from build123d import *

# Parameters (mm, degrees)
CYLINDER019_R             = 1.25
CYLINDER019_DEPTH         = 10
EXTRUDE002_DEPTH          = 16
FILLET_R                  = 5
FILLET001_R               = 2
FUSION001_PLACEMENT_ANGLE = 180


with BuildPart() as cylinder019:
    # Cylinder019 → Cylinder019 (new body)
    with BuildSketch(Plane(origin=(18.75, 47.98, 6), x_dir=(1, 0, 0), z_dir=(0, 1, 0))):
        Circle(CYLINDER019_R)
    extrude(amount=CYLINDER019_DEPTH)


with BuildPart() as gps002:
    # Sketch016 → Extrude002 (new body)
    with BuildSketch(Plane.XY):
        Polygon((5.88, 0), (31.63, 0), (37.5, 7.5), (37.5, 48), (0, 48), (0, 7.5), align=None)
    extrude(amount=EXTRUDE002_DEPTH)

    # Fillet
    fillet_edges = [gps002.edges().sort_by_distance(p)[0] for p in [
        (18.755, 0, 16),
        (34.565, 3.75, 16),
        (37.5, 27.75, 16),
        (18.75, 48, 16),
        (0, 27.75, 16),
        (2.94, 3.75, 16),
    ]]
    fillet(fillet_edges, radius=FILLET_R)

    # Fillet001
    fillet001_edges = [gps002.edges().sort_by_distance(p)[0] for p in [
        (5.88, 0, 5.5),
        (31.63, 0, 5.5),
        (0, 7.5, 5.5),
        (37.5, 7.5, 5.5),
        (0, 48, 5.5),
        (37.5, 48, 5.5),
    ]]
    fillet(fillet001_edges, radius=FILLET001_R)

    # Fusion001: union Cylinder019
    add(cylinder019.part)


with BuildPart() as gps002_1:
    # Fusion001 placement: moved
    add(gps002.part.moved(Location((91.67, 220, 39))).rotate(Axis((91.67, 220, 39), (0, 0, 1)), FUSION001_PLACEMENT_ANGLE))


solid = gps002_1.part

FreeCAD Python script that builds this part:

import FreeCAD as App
import Part
import Sketcher

V = App.Vector
Q = App.Units.Quantity


def edges_at(feature, points):
    """Names of the edges that pass closest to the given points."""
    edges = feature.Shape.Edges
    near = lambda p: min(range(len(edges)), key=lambda i: edges[i].distToShape(Part.Vertex(*p))[0])
    return sorted({f"Edge{near(p) + 1}" for p in points})


def add_polygon(sketch, points):
    """Adds a closed chain of lines whose ends are joined by coincident constraints."""
    first, n = sketch.GeometryCount, len(points)
    for a, b in zip(points, points[1:] + points[:1]):
        sketch.addGeometry(Part.LineSegment(App.Vector(*a, 0), App.Vector(*b, 0)), False)
    for i in range(n):
        sketch.addConstraint(Sketcher.Constraint("Coincident", first + i, 2, first + (i + 1) % n, 1))

doc = App.newDocument("Part")
body = doc.addObject("PartDesign::Body", "Body")

# Sketch on XZ plane
sketch1 = doc.addObject("Sketcher::SketchObject", "Sketch")
body.addObject(sketch1)
sketch1.AttachmentSupport = (doc.XZ_Plane, [""])
sketch1.MapMode = "FlatFace"
sketch1.AttachmentOffset = App.Placement(V(0, 0, -47.98), App.Rotation())
sketch1.addGeometry(Part.Circle(V(18.8, 6, 0), V(0, 0, 1), 1.2), False)
sketch1.addConstraint([
    Sketcher.Constraint("Diameter", 0, Q("2.5 mm")),
    Sketcher.Constraint("DistanceY", -1, 1, 0, 3, Q("6 mm")),
    Sketcher.Constraint("DistanceX", -1, 1, 0, 3, Q("18.75 mm")),
])
pad1 = doc.addObject("PartDesign::Pad", "Pad")
body.addObject(pad1)
pad1.Profile = sketch1
pad1.Length = 10
pad1.Reversed = True
body2 = doc.addObject("PartDesign::Body", "Body001")

# Sketch on XY plane
sketch2 = doc.addObject("Sketcher::SketchObject", "Sketch001")
body2.addObject(sketch2)
sketch2.AttachmentSupport = (doc.getObject("XY_Plane001"), [""])
sketch2.MapMode = "FlatFace"
add_polygon(sketch2, [(6, 0), (32, 0), (38, 8), (38, 48), (0, 48), (0, 8)])  # lines 0-5
sketch2.addConstraint([
    Sketcher.Constraint("Horizontal", 0),
    Sketcher.Constraint("Vertical", 2),
    Sketcher.Constraint("Horizontal", 3),
    Sketcher.Constraint("Vertical", 4),
    Sketcher.Constraint("PointOnObject", 0, 2, -1),
    Sketcher.Constraint("PointOnObject", 3, 2, -2),
    Sketcher.Constraint("Horizontal", 1, 2, 4, 2),
    Sketcher.Constraint("DistanceX", 3, 2, 3, 1, Q("37.5 mm")),
    Sketcher.Constraint("DistanceY", 2, 1, 2, 2, Q("40.5 mm")),
    Sketcher.Constraint("DistanceY", -1, 1, 2, 2, Q("48 mm")),
    Sketcher.Constraint("DistanceX", 0, 1, 0, 2, Q("25.75 mm")),
    Sketcher.Constraint("DistanceX", -1, 1, 0, 2, Q("31.63 mm")),
])
pad2 = doc.addObject("PartDesign::Pad", "Pad001")
body2.addObject(pad2)
pad2.Profile = sketch2
pad2.Length = 16
doc.recompute()

fillet = doc.addObject("PartDesign::Fillet", "Fillet")
body2.addObject(fillet)
fillet.Base = (pad2, edges_at(pad2, [
    (18.755, 0, 16),
    (34.565, 3.75, 16),
    (37.5, 27.75, 16),
    (18.75, 48, 16),
    (0, 27.75, 16),
    (2.94, 3.75, 16),
]))
fillet.Radius = 5
doc.recompute()

fillet2 = doc.addObject("PartDesign::Fillet", "Fillet001")
body2.addObject(fillet2)
fillet2.Base = (fillet, edges_at(fillet, [
    (5.88, 0, 5.5),
    (31.63, 0, 5.5),
    (0, 7.5, 5.5),
    (37.5, 7.5, 5.5),
    (0, 48, 5.5),
    (37.5, 48, 5.5),
]))
fillet2.Radius = 2
doc.recompute()

boolean = doc.addObject("PartDesign::Boolean", "Boolean")
body2.addObject(boolean)
boolean.Type = "Fuse"
boolean.addObjects([body])
body3 = doc.addObject("PartDesign::Body", "Body002")
doc.recompute()

body2.Placement = App.Placement(V(91.67, 220, 39), App.Rotation(V(0, 0, 1), 180))
boolean2 = doc.addObject("PartDesign::Boolean", "Boolean001")
body3.addObject(boolean2)
boolean2.Type = "Fuse"
boolean2.addObjects([body2])

doc.recompute()
